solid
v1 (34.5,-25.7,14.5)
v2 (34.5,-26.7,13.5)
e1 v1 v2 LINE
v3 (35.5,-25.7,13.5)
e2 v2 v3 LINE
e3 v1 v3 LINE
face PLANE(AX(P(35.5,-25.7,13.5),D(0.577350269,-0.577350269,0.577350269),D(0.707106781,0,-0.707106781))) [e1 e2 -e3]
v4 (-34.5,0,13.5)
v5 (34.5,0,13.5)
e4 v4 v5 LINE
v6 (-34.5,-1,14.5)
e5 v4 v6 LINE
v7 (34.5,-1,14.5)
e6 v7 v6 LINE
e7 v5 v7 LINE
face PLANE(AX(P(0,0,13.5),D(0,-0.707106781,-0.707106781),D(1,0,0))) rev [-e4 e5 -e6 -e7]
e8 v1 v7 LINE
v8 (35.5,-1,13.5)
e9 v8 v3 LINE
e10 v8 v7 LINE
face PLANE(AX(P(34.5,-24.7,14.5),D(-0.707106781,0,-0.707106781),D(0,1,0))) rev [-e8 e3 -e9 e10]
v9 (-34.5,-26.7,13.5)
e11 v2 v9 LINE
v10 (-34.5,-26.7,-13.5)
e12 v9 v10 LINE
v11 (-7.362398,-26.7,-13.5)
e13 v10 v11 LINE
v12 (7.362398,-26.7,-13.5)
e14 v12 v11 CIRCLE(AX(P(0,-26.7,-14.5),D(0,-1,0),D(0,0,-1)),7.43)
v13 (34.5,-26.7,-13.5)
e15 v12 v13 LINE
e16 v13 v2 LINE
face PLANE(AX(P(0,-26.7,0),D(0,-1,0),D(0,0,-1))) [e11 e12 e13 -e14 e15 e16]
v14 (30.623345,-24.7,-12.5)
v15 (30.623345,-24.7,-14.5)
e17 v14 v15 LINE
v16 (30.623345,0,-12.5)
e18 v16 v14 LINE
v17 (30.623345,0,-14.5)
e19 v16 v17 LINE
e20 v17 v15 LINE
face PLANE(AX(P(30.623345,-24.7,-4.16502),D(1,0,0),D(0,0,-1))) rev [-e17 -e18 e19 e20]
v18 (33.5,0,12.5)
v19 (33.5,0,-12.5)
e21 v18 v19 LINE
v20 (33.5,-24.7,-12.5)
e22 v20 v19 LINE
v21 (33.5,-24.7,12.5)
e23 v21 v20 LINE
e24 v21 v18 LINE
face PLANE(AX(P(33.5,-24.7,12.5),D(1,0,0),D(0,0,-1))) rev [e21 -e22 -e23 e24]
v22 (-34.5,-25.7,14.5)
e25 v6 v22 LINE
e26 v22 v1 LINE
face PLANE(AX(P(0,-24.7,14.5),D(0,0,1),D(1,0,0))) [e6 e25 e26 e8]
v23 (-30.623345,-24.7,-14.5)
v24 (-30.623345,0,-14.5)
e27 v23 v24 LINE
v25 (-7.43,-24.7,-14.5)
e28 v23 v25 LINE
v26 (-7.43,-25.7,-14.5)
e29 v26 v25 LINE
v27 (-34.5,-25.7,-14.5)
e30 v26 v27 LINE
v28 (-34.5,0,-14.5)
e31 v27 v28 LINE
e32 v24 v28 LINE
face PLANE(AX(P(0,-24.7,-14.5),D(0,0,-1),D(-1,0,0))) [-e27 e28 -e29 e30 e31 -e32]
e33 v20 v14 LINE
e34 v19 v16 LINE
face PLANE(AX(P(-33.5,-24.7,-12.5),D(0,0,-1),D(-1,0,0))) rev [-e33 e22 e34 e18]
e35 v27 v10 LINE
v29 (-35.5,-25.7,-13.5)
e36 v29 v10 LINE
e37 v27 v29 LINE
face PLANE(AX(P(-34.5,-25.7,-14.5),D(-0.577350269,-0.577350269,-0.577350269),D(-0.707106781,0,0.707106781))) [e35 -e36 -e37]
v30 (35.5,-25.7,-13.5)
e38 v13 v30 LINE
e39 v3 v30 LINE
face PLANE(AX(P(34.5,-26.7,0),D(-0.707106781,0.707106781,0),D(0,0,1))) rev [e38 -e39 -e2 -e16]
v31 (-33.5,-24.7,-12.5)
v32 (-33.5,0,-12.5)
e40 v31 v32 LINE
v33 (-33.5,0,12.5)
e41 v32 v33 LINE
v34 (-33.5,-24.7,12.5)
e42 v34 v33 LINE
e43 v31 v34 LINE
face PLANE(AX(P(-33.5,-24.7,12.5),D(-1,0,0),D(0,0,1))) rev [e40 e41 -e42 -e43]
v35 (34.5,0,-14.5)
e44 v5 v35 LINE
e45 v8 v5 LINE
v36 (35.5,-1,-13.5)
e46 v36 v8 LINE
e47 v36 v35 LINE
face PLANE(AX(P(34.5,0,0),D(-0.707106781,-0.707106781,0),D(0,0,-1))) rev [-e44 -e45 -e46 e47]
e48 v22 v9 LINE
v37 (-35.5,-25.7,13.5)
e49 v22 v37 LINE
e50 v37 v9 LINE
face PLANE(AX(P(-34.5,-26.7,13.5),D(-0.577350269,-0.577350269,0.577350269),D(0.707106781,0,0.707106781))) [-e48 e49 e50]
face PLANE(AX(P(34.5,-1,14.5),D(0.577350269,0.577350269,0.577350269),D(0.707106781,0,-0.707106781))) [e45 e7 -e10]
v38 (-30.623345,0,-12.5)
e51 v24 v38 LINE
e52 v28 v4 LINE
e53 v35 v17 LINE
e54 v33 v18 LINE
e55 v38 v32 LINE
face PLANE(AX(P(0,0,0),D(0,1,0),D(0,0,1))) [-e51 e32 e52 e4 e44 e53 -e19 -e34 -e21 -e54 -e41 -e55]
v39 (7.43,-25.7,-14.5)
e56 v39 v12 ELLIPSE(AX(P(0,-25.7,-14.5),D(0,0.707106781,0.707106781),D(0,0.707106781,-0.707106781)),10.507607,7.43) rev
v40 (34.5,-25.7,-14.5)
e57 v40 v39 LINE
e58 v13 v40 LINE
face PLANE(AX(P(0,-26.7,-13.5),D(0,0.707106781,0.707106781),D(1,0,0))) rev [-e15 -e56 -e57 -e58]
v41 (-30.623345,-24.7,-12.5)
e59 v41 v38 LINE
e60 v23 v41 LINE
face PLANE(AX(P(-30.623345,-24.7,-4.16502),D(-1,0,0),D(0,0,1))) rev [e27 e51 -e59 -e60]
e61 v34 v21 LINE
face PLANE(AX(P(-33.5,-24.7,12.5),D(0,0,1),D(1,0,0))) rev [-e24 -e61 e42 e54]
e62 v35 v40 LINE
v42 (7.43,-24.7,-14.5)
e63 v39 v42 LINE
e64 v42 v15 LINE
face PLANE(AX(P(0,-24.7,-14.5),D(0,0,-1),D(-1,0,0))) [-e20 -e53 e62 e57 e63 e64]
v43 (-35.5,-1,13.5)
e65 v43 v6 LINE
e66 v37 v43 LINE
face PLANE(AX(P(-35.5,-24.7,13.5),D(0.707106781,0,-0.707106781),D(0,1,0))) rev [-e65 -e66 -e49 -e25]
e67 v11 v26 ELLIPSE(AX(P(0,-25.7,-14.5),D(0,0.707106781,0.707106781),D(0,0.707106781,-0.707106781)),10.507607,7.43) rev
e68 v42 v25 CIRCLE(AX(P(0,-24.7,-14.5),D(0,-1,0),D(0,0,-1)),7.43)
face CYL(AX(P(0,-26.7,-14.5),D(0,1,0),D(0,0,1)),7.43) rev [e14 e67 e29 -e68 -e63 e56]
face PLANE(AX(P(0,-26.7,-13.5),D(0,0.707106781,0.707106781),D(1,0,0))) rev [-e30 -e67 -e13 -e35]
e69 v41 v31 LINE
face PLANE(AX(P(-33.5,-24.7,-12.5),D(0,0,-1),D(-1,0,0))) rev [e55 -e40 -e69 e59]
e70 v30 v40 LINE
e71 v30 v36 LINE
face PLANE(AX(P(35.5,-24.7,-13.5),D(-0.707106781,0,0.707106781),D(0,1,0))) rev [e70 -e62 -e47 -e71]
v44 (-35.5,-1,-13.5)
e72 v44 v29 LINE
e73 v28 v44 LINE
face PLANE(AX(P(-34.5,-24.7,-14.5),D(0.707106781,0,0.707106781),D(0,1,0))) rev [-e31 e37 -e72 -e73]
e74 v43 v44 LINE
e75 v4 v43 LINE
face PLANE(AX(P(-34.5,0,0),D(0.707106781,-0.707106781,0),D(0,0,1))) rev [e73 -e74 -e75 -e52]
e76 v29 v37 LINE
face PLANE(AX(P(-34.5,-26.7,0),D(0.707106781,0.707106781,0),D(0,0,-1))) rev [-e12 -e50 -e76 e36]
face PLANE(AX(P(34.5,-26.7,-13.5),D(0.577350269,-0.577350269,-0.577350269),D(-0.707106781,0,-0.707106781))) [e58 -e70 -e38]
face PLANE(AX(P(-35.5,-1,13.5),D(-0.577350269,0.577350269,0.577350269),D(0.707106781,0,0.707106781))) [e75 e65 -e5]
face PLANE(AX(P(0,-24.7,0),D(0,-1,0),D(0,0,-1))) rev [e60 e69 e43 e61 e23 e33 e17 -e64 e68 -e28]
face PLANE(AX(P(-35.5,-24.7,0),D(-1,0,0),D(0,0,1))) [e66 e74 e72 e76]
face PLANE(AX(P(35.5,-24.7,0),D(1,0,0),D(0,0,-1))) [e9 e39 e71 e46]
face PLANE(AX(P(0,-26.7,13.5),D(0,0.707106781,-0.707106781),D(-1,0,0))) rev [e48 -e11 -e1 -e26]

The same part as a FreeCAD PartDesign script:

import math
import FreeCAD as App
import Part
import Sketcher

V = App.Vector
Q = App.Units.Quantity


def edges_at(feature, points):
    """Names of the edges that pass closest to the given points."""
    edges = feature.Shape.Edges
    near = lambda p: min(range(len(edges)), key=lambda i: edges[i].distToShape(Part.Vertex(*p))[0])
    return sorted({f"Edge{near(p) + 1}" for p in points})

doc = App.newDocument("Part")
params = doc.addObject("Spreadsheet::Sheet", "Params")
for row, (alias, value) in enumerate([
    ("sketch1_width", "71 mm"),
    ("sketch1_width2", "67 mm"),
    ("sketch1_height", "29 mm"),
    ("sketch1_height2", "25 mm"),
    ("pad1_length", "24.7 mm"),
    ("sketch3_width", "71 mm"),
    ("sketch3_height", "29 mm"),
    ("sketch3_radius", "7.43 mm"),
    ("pad2_length", "2 mm"),
    ("chamfer_size", "1 mm"),
], start=1):
    params.set(f"A{row}", alias)
    params.set(f"B{row}", "=" + value)
    params.setAlias(f"B{row}", alias)

body = doc.addObject("PartDesign::Body", "Body")

# Sketch on XZ plane
sketch1 = body.newObject("Sketcher::SketchObject", "Sketch")
sketch1.AttachmentSupport = (doc.getObject("XZ_Plane"), [""])
sketch1.MapMode = "FlatFace"
sketch1.addGeometry(Part.LineSegment(V(-36, -14, 0), V(-36, 14, 0)), False)
sketch1.addGeometry(Part.LineSegment(V(-36, 14, 0), V(36, 14, 0)), False)
sketch1.addGeometry(Part.LineSegment(V(36, 14, 0), V(36, -14, 0)), False)
sketch1.addGeometry(Part.LineSegment(V(36, -14, 0), V(-36, -14, 0)), False)
sketch1.addGeometry(Part.LineSegment(V(34, 12, 0), V(-34, 12, 0)), False)
sketch1.addGeometry(Part.LineSegment(V(-34, 12, 0), V(-34, -12, 0)), False)
sketch1.addGeometry(Part.LineSegment(V(-34, -12, 0), V(34, -12, 0)), False)
sketch1.addGeometry(Part.LineSegment(V(34, -12, 0), V(34, 12, 0)), False)
sketch1.addConstraint(Sketcher.Constraint("Coincident", 0, 2, 1, 1))
sketch1.addConstraint(Sketcher.Constraint("Coincident", 1, 2, 2, 1))
sketch1.addConstraint(Sketcher.Constraint("Coincident", 2, 2, 3, 1))
sketch1.addConstraint(Sketcher.Constraint("Coincident", 3, 2, 0, 1))
sketch1.addConstraint(Sketcher.Constraint("Coincident", 4, 2, 5, 1))
sketch1.addConstraint(Sketcher.Constraint("Coincident", 5, 2, 6, 1))
sketch1.addConstraint(Sketcher.Constraint("Coincident", 6, 2, 7, 1))
sketch1.addConstraint(Sketcher.Constraint("Coincident", 7, 2, 4, 1))
sketch1.addConstraint(Sketcher.Constraint("Vertical", 0))
sketch1.addConstraint(Sketcher.Constraint("Horizontal", 1))
sketch1.addConstraint(Sketcher.Constraint("Vertical", 2))
sketch1.addConstraint(Sketcher.Constraint("Horizontal", 3))
sketch1.addConstraint(Sketcher.Constraint("Horizontal", 4))
sketch1.addConstraint(Sketcher.Constraint("Vertical", 5))
sketch1.addConstraint(Sketcher.Constraint("Horizontal", 6))
sketch1.addConstraint(Sketcher.Constraint("Vertical", 7))
sketch1.addConstraint(Sketcher.Constraint("Symmetric", 0, 2, 2, 2, -1, 1))
sketch1.addConstraint(Sketcher.Constraint("Symmetric", 4, 2, 6, 2, -1, 1))
sketch1.addConstraint(Sketcher.Constraint("DistanceX", 1, 1, 1, 2, Q("71 mm")))
sketch1.addConstraint(Sketcher.Constraint("DistanceX", 4, 2, 4, 1, Q("67 mm")))
sketch1.addConstraint(Sketcher.Constraint("DistanceY", 0, 1, 0, 2, Q("29 mm")))
sketch1.addConstraint(Sketcher.Constraint("DistanceY", 5, 2, 5, 1, Q("25 mm")))
sketch1.setExpression("Constraints[18]", "Params.sketch1_width")
sketch1.setExpression("Constraints[19]", "Params.sketch1_width2")
sketch1.setExpression("Constraints[20]", "Params.sketch1_height")
sketch1.setExpression("Constraints[21]", "Params.sketch1_height2")
pad1 = body.newObject("PartDesign::Pad", "Pad")
pad1.Profile = sketch1
pad1.setExpression("Length", "Params.pad1_length")

# Sketch on XZ plane
sketch2 = body.newObject("Sketcher::SketchObject", "Sketch001")
sketch2.AttachmentSupport = (doc.getObject("XZ_Plane"), [""])
sketch2.MapMode = "FlatFace"
sketch2.addGeometry(Part.LineSegment(V(-31, -21, 0), V(-31, -4, 0)), False)
sketch2.addGeometry(Part.LineSegment(V(-31, -4, 0), V(31, -4, 0)), False)
sketch2.addGeometry(Part.LineSegment(V(31, -4, 0), V(31, -21, 0)), False)
sketch2.addGeometry(Part.LineSegment(V(31, -21, 0), V(-31, -21, 0)), False)
sketch2.addConstraint(Sketcher.Constraint("Coincident", 0, 2, 1, 1))
sketch2.addConstraint(Sketcher.Constraint("Coincident", 1, 2, 2, 1))
sketch2.addConstraint(Sketcher.Constraint("Coincident", 2, 2, 3, 1))
sketch2.addConstraint(Sketcher.Constraint("Coincident", 3, 2, 0, 1))
sketch2.addConstraint(Sketcher.Constraint("Vertical", 0))
sketch2.addConstraint(Sketcher.Constraint("Horizontal", 1))
sketch2.addConstraint(Sketcher.Constraint("Vertical", 2))
sketch2.addConstraint(Sketcher.Constraint("Horizontal", 3))
sketch2.addConstraint(Sketcher.Constraint("DistanceX", 1, 1, 1, 2, Q("61.24669 mm")))
sketch2.addConstraint(Sketcher.Constraint("DistanceY", 0, 1, 0, 2, Q("16.66996 mm")))
sketch2.addConstraint(Sketcher.Constraint("DistanceY", 0, 2, -1, 1, Q("4.16502 mm")))
sketch2.addConstraint(Sketcher.Constraint("DistanceX", 0, 2, -1, 1, Q("30.623345 mm")))
pocket1 = body.newObject("PartDesign::Pocket", "Pocket")
pocket1.Profile = sketch2
pocket1.Type = "ThroughAll"
pocket1.Midplane = True

# Sketch on XZ plane
sketch3 = body.newObject("Sketcher::SketchObject", "Sketch002")
sketch3.AttachmentSupport = (doc.getObject("XZ_Plane"), [""])
sketch3.MapMode = "FlatFace"
sketch3.AttachmentOffset = App.Placement(V(0, 0, 24.7), App.Rotation())
sketch3.addGeometry(Part.LineSegment(V(7, -14, 0), V(36, -14, 0)), False)
sketch3.addGeometry(Part.LineSegment(V(36, -14, 0), V(36, 14, 0)), False)
sketch3.addGeometry(Part.LineSegment(V(36, 14, 0), V(-36, 14, 0)), False)
sketch3.addGeometry(Part.LineSegment(V(-36, 14, 0), V(-36, -14, 0)), False)
sketch3.addGeometry(Part.LineSegment(V(-36, -14, 0), V(-7, -14, 0)), False)
sketch3.addGeometry(Part.ArcOfCircle(Part.Circle(V(0, -14, 0), V(0, 0, 1), 7), math.radians(0), math.radians(180)), False)
sketch3.addConstraint(Sketcher.Constraint("Coincident", 0, 2, 1, 1))
sketch3.addConstraint(Sketcher.Constraint("Coincident", 1, 2, 2, 1))
sketch3.addConstraint(Sketcher.Constraint("Coincident", 2, 2, 3, 1))
sketch3.addConstraint(Sketcher.Constraint("Coincident", 3, 2, 4, 1))
sketch3.addConstraint(Sketcher.Constraint("Coincident", 4, 2, 5, 2))
sketch3.addConstraint(Sketcher.Constraint("Coincident", 5, 1, 0, 1))
sketch3.addConstraint(Sketcher.Constraint("Horizontal", 0))
sketch3.addConstraint(Sketcher.Constraint("Vertical", 1))
sketch3.addConstraint(Sketcher.Constraint("Horizontal", 2))
sketch3.addConstraint(Sketcher.Constraint("Vertical", 3))
sketch3.addConstraint(Sketcher.Constraint("Horizontal", 4))
sketch3.addConstraint(Sketcher.Constraint("Symmetric", 0, 2, 2, 2, -1, 1))
sketch3.addConstraint(Sketcher.Constraint("Symmetric", 4, 2, 5, 1, -2))
sketch3.addConstraint(Sketcher.Constraint("Horizontal", 5, 3, 0, 2))
sketch3.addConstraint(Sketcher.Constraint("DistanceX", 2, 2, 2, 1, Q("71 mm")))
sketch3.addConstraint(Sketcher.Constraint("DistanceY", 1, 1, 1, 2, Q("29 mm")))
sketch3.addConstraint(Sketcher.Constraint("Radius", 5, Q("7.43 mm")))
sketch3.setExpression("Constraints[14]", "Params.sketch3_width")
sketch3.setExpression("Constraints[15]", "Params.sketch3_height")
sketch3.setExpression("Constraints[16]", "Params.sketch3_radius")
pad2 = body.newObject("PartDesign::Pad", "Pad001")
pad2.Profile = sketch3
pad2.setExpression("Length", "Params.pad2_length")
doc.recompute()

chamfer = body.newObject("PartDesign::Chamfer", "Chamfer")
chamfer.Base = (pad2, edges_at(pad2, [
    (0, 0, 14.5),
    (-35.5, 0, 0),
    (35.5, 0, 0),
    (21.465, -26.7, -14.5),
    (35.5, -26.7, 0),
    (0, -26.7, 14.5),
    (-35.5, -26.7, 0),
    (-21.465, -26.7, -14.5),
    (35.5, -13.35, 14.5),
    (-35.5, -13.35, 14.5),
    (-35.5, -13.35, -14.5),
    (35.5, -13.35, -14.5),
]))
chamfer.setExpression("Size", "Params.chamfer_size")

doc.recompute()
